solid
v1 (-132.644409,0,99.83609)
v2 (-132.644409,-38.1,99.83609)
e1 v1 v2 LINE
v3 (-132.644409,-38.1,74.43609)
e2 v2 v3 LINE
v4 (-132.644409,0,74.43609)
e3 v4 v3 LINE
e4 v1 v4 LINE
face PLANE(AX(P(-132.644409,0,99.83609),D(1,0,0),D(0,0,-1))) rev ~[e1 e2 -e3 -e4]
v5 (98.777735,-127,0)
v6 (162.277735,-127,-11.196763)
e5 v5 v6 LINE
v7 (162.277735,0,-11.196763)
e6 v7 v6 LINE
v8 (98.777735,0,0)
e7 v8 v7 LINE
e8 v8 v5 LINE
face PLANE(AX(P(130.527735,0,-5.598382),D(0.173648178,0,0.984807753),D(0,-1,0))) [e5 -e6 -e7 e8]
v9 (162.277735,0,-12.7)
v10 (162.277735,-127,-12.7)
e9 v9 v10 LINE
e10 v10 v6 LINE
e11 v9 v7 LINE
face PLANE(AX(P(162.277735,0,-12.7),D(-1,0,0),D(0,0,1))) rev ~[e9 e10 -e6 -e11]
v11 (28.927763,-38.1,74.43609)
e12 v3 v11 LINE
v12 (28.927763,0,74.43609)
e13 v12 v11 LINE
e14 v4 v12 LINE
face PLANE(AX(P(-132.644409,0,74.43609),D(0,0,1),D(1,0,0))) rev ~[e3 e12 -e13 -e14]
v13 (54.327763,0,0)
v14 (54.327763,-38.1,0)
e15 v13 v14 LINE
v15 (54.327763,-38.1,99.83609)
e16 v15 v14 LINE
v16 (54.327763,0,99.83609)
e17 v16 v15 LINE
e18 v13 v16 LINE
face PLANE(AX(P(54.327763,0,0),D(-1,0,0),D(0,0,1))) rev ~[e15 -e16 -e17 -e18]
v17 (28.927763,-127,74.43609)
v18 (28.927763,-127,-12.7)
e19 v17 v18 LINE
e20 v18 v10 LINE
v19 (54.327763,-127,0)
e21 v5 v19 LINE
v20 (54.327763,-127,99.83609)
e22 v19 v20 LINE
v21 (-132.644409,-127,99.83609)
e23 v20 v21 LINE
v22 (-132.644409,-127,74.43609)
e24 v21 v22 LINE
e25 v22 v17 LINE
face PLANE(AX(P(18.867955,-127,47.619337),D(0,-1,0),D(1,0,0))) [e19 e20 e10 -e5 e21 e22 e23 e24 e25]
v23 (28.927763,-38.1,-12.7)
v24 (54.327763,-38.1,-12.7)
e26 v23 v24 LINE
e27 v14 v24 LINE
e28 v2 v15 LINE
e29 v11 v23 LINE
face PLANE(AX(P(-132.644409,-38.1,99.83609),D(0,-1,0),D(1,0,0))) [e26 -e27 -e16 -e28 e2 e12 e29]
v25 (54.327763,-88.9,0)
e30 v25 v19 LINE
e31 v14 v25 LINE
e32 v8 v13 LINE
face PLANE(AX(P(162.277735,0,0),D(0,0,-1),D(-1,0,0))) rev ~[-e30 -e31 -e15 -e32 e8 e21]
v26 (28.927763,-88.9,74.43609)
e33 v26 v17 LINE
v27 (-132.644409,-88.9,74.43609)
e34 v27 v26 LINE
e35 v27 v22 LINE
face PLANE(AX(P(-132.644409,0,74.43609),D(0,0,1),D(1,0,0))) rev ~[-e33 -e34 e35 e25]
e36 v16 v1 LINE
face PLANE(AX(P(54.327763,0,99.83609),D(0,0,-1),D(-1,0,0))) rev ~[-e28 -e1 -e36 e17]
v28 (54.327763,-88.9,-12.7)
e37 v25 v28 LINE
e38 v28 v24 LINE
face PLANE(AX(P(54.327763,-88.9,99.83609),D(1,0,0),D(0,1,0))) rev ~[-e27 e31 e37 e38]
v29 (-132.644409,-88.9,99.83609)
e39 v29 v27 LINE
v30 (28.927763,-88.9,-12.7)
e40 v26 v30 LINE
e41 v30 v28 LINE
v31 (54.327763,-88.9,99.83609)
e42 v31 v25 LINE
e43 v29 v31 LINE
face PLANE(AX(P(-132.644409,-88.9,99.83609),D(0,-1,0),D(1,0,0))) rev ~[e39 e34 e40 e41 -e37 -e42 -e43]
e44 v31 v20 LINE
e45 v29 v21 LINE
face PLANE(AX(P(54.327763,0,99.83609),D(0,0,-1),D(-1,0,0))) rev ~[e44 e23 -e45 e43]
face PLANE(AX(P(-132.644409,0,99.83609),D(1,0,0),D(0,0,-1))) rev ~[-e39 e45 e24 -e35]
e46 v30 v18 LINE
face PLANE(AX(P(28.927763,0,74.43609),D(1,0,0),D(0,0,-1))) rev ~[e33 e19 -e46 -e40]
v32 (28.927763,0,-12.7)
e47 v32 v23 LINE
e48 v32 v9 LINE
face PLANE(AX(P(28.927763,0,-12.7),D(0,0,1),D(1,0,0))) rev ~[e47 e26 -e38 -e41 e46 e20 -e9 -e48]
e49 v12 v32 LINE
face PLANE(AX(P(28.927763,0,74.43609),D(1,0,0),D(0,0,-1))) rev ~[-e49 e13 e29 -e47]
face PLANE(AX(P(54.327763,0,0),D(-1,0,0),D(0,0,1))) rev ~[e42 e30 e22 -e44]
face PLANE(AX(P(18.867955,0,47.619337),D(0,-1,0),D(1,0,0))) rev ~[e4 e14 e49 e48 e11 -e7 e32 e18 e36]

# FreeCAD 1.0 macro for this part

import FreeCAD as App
import Part
import Sketcher
from FreeCAD import Vector
Q = App.Units.Quantity


def edges_at(feature, points):
    """Names of the edges that pass closest to the given points."""
    edges = feature.Shape.Edges
    near = lambda p: min(range(len(edges)), key=lambda i: edges[i].distToShape(Part.Vertex(*p))[0])
    return sorted({f"Edge{near(p) + 1}" for p in points})

doc = App.newDocument("Part")
body = doc.addObject("PartDesign::Body", "Body")

sketch1 = doc.addObject("Sketcher::SketchObject", "Sketch")
body.addObject(sketch1)
sketch1.AttachmentSupport = (doc.XZ_Plane, [""])
sketch1.MapMode = "FlatFace"
sketch1.addGeometry([
    Part.LineSegment(Vector(162, -13, 0), Vector(162, 0, 0)),
    Part.LineSegment(Vector(162, 0, 0), Vector(54, 0, 0)),
    Part.LineSegment(Vector(54, 0, 0), Vector(54, 100, 0)),
    Part.LineSegment(Vector(54, 100, 0), Vector(-133, 100, 0)),
    Part.LineSegment(Vector(-133, 100, 0), Vector(-133, 74, 0)),
    Part.LineSegment(Vector(-133, 74, 0), Vector(29, 74, 0)),
    Part.LineSegment(Vector(29, 74, 0), Vector(29, -13, 0)),
    Part.LineSegment(Vector(29, -13, 0), Vector(162, -13, 0)),
], False)
sketch1.addConstraint([
    Sketcher.Constraint("Coincident", 0, 2, 1, 1),
    Sketcher.Constraint("Coincident", 1, 2, 2, 1),
    Sketcher.Constraint("Coincident", 2, 2, 3, 1),
    Sketcher.Constraint("Coincident", 3, 2, 4, 1),
    Sketcher.Constraint("Coincident", 4, 2, 5, 1),
    Sketcher.Constraint("Coincident", 5, 2, 6, 1),
    Sketcher.Constraint("Coincident", 6, 2, 7, 1),
    Sketcher.Constraint("Coincident", 7, 2, 0, 1),
    Sketcher.Constraint("Vertical", 0),
    Sketcher.Constraint("Horizontal", 1),
    Sketcher.Constraint("Vertical", 2),
    Sketcher.Constraint("Horizontal", 3),
    Sketcher.Constraint("Vertical", 4),
    Sketcher.Constraint("Horizontal", 5),
    Sketcher.Constraint("Vertical", 6),
    Sketcher.Constraint("Horizontal", 7),
    Sketcher.Constraint("PointOnObject", 0, 2, -1),
    Sketcher.Constraint("DistanceY", 4, 2, 4, 1, Q("1 in")),
    Sketcher.Constraint("DistanceY", 0, 1, 0, 2, Q("0.5 in")),
    Sketcher.Constraint("DistanceX", 5, 2, 2, 2, Q("1 in")),
    Sketcher.Constraint("DistanceX", 1, 2, 1, 1, Q("107.949972 mm")),
    Sketcher.Constraint("DistanceX", 3, 2, 3, 1, Q("186.972172 mm")),
    Sketcher.Constraint("DistanceY", 2, 1, 2, 2, Q("99.83609 mm")),
    Sketcher.Constraint("DistanceX", 3, 2, -1, 1, Q("132.644409 mm")),
])
pad1 = doc.addObject("PartDesign::Pad", "Pad")
body.addObject(pad1)
pad1.Profile = sketch1
pad1.Length = Q("5 in")

sketch2 = doc.addObject("Sketcher::SketchObject", "Sketch001")
body.addObject(sketch2)
sketch2.AttachmentSupport = (doc.XY_Plane, [""])
sketch2.MapMode = "FlatFace"
sketch2.AttachmentOffset = App.Placement(Vector(0, 0, 99.83609), App.Rotation())
sketch2.addGeometry([
    Part.LineSegment(Vector(-133, -38, 0), Vector(-133, -89, 0)),
    Part.LineSegment(Vector(-133, -89, 0), Vector(54, -89, 0)),
    Part.LineSegment(Vector(54, -89, 0), Vector(54, -38, 0)),
    Part.LineSegment(Vector(54, -38, 0), Vector(-133, -38, 0)),
], False)
sketch2.addConstraint([
    Sketcher.Constraint("Coincident", 0, 2, 1, 1),
    Sketcher.Constraint("Coincident", 1, 2, 2, 1),
    Sketcher.Constraint("Coincident", 2, 2, 3, 1),
    Sketcher.Constraint("Coincident", 3, 2, 0, 1),
    Sketcher.Constraint("Vertical", 0),
    Sketcher.Constraint("Horizontal", 1),
    Sketcher.Constraint("Vertical", 2),
    Sketcher.Constraint("Horizontal", 3),
    Sketcher.Constraint("DistanceY", 0, 2, 0, 1, Q("2 in")),
    Sketcher.Constraint("DistanceY", 0, 2, -1, 1, Q("3.5 in")),
    Sketcher.Constraint("DistanceX", 1, 1, 1, 2, Q("186.972172 mm")),
    Sketcher.Constraint("DistanceX", 0, 2, -1, 1, Q("132.644409 mm")),
])
pocket1 = doc.addObject("PartDesign::Pocket", "Pocket")
body.addObject(pocket1)
pocket1.Profile = sketch2
pocket1.Type = "ThroughAll"
doc.recompute()

chamfer = doc.addObject("PartDesign::Chamfer", "Chamfer")
body.addObject(chamfer)
chamfer.Base = (pocket1, edges_at(pocket1, [(162.278, -63.5, 0)]))
chamfer.ChamferType = "Two distances"
chamfer.Size = Q("2.5 in")
chamfer.Size2 = 11.196763
chamfer.FlipDirection = True

doc.recompute()
